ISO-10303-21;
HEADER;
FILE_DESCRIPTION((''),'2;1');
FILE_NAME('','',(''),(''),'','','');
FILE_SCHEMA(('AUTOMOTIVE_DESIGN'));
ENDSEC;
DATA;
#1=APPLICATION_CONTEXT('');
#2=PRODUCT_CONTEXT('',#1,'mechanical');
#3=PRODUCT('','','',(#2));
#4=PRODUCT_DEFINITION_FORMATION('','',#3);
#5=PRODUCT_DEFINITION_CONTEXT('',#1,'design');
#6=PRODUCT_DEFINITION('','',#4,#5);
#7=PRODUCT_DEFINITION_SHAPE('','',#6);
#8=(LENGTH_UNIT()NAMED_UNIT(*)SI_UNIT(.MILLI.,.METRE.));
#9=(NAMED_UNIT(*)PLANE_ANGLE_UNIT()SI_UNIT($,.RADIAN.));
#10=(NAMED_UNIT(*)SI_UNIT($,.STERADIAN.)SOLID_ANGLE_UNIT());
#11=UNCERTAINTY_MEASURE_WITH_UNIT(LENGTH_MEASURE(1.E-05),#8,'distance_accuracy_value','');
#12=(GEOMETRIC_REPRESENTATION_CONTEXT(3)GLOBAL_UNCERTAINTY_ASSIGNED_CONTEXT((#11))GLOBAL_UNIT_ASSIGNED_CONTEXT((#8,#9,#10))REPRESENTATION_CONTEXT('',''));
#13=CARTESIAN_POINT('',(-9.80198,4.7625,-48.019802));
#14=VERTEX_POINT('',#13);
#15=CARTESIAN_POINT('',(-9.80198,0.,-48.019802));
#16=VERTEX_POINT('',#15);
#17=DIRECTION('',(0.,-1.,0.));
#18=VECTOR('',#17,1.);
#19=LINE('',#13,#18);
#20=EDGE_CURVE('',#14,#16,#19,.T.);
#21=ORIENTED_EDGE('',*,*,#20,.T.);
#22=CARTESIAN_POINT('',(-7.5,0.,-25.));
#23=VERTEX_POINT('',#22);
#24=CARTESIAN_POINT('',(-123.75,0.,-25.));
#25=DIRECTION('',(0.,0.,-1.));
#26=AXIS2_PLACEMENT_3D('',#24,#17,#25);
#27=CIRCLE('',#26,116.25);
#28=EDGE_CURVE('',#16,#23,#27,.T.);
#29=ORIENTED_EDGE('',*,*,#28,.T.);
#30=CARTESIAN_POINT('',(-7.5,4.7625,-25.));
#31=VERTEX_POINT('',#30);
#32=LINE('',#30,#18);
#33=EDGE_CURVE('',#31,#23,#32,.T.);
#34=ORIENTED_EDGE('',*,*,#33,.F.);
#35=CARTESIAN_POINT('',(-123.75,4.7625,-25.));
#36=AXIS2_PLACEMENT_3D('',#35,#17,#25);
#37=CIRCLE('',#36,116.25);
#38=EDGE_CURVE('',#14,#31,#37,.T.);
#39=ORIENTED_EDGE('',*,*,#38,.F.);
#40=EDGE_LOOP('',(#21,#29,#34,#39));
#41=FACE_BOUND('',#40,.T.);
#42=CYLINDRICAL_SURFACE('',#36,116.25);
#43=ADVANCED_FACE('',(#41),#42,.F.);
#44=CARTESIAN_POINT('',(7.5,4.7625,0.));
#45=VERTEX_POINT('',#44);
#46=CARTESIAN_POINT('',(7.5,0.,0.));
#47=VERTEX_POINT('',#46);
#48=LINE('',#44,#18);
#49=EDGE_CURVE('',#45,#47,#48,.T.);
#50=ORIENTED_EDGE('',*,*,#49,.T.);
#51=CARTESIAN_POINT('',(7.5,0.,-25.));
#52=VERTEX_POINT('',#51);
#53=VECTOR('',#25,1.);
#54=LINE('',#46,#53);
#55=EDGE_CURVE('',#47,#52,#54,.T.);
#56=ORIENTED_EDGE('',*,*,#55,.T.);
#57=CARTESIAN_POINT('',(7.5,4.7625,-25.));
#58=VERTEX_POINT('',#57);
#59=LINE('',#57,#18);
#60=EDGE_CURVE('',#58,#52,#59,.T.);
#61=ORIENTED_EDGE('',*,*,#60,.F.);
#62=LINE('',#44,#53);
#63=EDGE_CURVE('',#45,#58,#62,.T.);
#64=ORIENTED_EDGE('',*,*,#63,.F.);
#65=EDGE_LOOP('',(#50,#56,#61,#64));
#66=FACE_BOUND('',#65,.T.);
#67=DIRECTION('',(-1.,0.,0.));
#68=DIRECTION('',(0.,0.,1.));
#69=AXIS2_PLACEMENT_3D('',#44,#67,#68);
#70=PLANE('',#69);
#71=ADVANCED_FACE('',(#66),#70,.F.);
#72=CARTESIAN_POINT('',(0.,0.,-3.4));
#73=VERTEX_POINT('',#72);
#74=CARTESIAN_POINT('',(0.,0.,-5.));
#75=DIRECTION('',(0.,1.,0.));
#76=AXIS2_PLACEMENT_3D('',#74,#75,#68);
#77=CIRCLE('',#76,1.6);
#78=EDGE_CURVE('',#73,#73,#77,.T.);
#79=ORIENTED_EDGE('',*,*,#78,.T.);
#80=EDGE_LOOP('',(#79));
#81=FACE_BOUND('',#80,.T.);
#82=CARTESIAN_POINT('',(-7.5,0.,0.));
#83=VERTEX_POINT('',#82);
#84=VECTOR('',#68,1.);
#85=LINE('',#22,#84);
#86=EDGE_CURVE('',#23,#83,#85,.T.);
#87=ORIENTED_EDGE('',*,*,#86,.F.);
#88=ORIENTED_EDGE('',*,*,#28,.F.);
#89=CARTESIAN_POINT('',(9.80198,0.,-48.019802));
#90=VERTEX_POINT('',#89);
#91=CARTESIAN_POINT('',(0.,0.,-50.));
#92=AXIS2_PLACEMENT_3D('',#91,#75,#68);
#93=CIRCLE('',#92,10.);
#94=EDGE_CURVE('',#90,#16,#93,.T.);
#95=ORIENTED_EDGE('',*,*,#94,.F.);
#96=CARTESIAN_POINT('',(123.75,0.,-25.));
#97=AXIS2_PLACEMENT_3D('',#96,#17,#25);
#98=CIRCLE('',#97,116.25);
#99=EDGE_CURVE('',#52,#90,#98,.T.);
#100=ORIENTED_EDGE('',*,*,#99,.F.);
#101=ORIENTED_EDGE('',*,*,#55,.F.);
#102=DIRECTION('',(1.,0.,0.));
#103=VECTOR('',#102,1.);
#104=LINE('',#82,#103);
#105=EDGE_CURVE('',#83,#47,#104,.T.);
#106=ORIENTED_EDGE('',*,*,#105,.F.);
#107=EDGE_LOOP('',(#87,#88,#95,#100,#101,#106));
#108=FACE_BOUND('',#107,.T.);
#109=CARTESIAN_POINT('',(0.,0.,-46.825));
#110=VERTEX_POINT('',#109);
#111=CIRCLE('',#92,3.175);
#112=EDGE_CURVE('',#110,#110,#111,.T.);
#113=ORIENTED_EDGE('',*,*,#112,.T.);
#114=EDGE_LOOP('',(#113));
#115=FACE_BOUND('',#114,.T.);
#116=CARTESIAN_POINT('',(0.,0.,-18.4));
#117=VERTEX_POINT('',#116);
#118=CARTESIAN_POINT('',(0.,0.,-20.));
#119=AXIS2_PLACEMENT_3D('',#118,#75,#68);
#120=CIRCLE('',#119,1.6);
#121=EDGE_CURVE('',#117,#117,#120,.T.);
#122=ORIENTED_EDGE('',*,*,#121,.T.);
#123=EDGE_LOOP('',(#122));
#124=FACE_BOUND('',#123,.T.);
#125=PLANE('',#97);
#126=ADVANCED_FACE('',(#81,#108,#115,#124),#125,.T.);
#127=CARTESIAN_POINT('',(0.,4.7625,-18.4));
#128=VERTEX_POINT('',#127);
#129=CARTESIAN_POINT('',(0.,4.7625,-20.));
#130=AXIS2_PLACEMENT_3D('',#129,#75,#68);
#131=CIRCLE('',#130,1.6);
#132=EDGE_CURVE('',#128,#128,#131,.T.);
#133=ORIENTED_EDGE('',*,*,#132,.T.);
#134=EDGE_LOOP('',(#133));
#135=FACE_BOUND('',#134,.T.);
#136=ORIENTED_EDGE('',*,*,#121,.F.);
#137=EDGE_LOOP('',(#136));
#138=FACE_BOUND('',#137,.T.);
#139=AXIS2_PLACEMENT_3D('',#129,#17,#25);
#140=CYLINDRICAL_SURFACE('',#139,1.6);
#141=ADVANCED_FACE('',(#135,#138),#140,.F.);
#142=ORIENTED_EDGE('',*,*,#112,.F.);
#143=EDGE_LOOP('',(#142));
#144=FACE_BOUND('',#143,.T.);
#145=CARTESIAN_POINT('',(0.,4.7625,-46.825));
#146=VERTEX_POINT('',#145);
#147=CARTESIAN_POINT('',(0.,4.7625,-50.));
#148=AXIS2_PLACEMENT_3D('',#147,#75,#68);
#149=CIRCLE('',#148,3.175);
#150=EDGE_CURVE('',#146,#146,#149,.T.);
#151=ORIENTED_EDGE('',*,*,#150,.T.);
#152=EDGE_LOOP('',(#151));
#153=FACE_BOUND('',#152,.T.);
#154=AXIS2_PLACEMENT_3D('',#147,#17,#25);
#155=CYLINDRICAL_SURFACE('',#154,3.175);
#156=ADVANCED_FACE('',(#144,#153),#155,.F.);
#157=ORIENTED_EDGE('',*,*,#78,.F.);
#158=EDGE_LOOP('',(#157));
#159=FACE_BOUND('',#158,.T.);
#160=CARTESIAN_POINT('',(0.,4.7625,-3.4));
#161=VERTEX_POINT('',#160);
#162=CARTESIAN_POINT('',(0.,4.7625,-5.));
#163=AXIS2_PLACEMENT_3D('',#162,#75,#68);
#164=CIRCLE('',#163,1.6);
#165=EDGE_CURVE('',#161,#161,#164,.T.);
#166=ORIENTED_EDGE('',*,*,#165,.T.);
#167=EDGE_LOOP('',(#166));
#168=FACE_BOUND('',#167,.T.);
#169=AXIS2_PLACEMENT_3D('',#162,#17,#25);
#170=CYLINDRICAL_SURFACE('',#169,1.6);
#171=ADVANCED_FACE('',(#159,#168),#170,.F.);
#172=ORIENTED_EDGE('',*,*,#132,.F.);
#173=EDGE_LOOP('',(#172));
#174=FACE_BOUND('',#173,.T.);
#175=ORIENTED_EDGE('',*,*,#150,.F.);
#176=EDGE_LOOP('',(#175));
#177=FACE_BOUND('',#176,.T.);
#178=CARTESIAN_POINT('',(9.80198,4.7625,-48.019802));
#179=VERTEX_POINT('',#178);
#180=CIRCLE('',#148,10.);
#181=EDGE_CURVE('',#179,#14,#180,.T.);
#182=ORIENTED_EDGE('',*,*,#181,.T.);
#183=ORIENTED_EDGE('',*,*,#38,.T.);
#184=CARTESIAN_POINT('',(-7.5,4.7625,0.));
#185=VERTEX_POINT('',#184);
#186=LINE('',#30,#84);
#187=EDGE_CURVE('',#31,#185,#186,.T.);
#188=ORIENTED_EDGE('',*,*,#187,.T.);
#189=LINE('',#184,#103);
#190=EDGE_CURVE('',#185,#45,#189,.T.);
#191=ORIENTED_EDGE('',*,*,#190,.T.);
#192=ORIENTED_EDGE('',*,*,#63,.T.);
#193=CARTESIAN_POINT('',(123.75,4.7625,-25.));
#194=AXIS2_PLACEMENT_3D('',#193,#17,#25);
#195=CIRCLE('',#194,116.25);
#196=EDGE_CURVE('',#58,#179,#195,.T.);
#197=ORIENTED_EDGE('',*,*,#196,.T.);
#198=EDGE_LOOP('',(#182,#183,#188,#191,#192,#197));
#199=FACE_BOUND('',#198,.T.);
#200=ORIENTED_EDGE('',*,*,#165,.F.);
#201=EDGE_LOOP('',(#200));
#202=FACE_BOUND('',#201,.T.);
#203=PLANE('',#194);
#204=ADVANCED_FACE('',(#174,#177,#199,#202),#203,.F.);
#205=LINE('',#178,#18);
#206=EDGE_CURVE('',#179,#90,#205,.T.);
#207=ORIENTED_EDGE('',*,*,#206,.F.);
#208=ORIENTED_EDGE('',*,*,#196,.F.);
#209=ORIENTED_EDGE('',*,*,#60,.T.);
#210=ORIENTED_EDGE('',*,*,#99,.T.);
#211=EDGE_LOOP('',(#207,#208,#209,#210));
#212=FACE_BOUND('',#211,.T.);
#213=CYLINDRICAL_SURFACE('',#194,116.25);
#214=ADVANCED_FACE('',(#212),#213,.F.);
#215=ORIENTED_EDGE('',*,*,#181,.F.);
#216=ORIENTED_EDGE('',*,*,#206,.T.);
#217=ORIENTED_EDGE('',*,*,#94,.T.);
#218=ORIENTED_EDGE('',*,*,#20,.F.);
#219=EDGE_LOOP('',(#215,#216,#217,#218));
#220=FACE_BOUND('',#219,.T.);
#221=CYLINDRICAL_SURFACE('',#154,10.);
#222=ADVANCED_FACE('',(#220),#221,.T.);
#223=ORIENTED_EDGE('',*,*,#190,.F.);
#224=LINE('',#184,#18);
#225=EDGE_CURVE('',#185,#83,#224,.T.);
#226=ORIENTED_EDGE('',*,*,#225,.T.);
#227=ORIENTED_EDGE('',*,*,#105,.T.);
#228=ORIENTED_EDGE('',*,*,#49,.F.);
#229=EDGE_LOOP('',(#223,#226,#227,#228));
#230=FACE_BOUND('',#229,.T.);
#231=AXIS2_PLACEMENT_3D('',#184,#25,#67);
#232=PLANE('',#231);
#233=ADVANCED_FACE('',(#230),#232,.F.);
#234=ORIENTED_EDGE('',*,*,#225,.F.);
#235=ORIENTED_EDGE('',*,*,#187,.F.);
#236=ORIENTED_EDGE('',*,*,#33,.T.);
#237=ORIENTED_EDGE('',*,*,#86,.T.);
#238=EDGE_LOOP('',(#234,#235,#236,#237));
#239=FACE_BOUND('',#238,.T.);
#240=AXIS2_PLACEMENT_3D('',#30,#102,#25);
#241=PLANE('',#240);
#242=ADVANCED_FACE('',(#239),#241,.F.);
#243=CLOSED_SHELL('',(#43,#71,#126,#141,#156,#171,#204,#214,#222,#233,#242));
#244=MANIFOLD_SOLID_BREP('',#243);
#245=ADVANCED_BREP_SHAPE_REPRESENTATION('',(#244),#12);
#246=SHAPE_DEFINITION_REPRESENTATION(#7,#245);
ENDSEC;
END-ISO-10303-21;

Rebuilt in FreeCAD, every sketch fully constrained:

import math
import FreeCAD as App
import Part
import Sketcher
from FreeCAD import Vector
Q = App.Units.Quantity

doc = App.newDocument("Part")
body = doc.addObject("PartDesign::Body", "Body")

sketch1 = body.newObject("Sketcher::SketchObject", "Sketch")
sketch1.AttachmentSupport = (doc.getObject("XZ_Plane"), [""])
sketch1.MapMode = "FlatFace"
sketch1.addGeometry(Part.LineSegment(Vector(-7.5, 0, 0), Vector(7.5, 0, 0)), False)
sketch1.addGeometry(Part.LineSegment(Vector(7.5, 0, 0), Vector(7.5, -25, 0)), False)
sketch1.addGeometry(Part.ArcOfCircle(Part.Circle(Vector(123.75, -25, 0), Vector(0, 0, 1), 116.25), math.radians(180), math.radians(191.421186)), False)
sketch1.addGeometry(Part.ArcOfCircle(Part.Circle(Vector(0, -50, 0), Vector(0, 0, 1), 10), math.radians(168.578814), math.radians(371.421186)), False)
sketch1.addGeometry(Part.ArcOfCircle(Part.Circle(Vector(-123.75, -25, 0), Vector(0, 0, 1), 116.25), math.radians(-11.421186), math.radians(0)), False)
sketch1.addGeometry(Part.LineSegment(Vector(-7.5, -25, 0), Vector(-7.5, 0, 0)), False)
sketch1.addGeometry(Part.Circle(Vector(0, -5, 0), Vector(0, 0, 1), 1.6), False)
sketch1.addGeometry(Part.Circle(Vector(0, -20, 0), Vector(0, 0, 1), 1.6), False)
sketch1.addGeometry(Part.Circle(Vector(0, -50, 0), Vector(0, 0, 1), 3.175), False)
sketch1.addConstraint(Sketcher.Constraint("Coincident", 0, 2, 1, 1))
sketch1.addConstraint(Sketcher.Constraint("Tangent", 1, 2, 2, 1))
sketch1.addConstraint(Sketcher.Constraint("Tangent", 2, 2, 3, 2))
sketch1.addConstraint(Sketcher.Constraint("Tangent", 3, 1, 4, 1))
sketch1.addConstraint(Sketcher.Constraint("Tangent", 4, 2, 5, 1))
sketch1.addConstraint(Sketcher.Constraint("Coincident", 5, 2, 0, 1))
sketch1.addConstraint(Sketcher.Constraint("Horizontal", 0))
sketch1.addConstraint(Sketcher.Constraint("Vertical", 1))
sketch1.addConstraint(Sketcher.Constraint("Vertical", 5))
sketch1.addConstraint(Sketcher.Constraint("Coincident", 8, 3, 3, 3))
sketch1.addConstraint(Sketcher.Constraint("Equal", 2, 4))
sketch1.addConstraint(Sketcher.Constraint("Equal", 6, 7))
sketch1.addConstraint(Sketcher.Constraint("Symmetric", 0, 2, 5, 2, -1, 1))
sketch1.addConstraint(Sketcher.Constraint("PointOnObject", 3, 3, -2))
sketch1.addConstraint(Sketcher.Constraint("PointOnObject", 6, 3, -2))
sketch1.addConstraint(Sketcher.Constraint("PointOnObject", 7, 3, -2))
sketch1.addConstraint(Sketcher.Constraint("Radius", 3, Q("10 mm")))
sketch1.addConstraint(Sketcher.Constraint("Diameter", 6, Q("3.2 mm")))
sketch1.addConstraint(Sketcher.Constraint("Diameter", 8, Q("6.35 mm")))
sketch1.addConstraint(Sketcher.Constraint("DistanceX", 0, 1, 0, 2, Q("15 mm")))
sketch1.addConstraint(Sketcher.Constraint("DistanceY", 1, 2, 1, 1, Q("25 mm")))
sketch1.addConstraint(Sketcher.Constraint("Radius", 2, Q("116.25 mm")))
sketch1.addConstraint(Sketcher.Constraint("DistanceY", 6, 3, -1, 1, Q("5 mm")))
sketch1.addConstraint(Sketcher.Constraint("DistanceY", 7, 3, -1, 1, Q("20 mm")))
pad1 = body.newObject("PartDesign::Pad", "Pad")
pad1.Profile = sketch1
pad1.Length = 4.7625
pad1.Reversed = True

doc.recompute()
